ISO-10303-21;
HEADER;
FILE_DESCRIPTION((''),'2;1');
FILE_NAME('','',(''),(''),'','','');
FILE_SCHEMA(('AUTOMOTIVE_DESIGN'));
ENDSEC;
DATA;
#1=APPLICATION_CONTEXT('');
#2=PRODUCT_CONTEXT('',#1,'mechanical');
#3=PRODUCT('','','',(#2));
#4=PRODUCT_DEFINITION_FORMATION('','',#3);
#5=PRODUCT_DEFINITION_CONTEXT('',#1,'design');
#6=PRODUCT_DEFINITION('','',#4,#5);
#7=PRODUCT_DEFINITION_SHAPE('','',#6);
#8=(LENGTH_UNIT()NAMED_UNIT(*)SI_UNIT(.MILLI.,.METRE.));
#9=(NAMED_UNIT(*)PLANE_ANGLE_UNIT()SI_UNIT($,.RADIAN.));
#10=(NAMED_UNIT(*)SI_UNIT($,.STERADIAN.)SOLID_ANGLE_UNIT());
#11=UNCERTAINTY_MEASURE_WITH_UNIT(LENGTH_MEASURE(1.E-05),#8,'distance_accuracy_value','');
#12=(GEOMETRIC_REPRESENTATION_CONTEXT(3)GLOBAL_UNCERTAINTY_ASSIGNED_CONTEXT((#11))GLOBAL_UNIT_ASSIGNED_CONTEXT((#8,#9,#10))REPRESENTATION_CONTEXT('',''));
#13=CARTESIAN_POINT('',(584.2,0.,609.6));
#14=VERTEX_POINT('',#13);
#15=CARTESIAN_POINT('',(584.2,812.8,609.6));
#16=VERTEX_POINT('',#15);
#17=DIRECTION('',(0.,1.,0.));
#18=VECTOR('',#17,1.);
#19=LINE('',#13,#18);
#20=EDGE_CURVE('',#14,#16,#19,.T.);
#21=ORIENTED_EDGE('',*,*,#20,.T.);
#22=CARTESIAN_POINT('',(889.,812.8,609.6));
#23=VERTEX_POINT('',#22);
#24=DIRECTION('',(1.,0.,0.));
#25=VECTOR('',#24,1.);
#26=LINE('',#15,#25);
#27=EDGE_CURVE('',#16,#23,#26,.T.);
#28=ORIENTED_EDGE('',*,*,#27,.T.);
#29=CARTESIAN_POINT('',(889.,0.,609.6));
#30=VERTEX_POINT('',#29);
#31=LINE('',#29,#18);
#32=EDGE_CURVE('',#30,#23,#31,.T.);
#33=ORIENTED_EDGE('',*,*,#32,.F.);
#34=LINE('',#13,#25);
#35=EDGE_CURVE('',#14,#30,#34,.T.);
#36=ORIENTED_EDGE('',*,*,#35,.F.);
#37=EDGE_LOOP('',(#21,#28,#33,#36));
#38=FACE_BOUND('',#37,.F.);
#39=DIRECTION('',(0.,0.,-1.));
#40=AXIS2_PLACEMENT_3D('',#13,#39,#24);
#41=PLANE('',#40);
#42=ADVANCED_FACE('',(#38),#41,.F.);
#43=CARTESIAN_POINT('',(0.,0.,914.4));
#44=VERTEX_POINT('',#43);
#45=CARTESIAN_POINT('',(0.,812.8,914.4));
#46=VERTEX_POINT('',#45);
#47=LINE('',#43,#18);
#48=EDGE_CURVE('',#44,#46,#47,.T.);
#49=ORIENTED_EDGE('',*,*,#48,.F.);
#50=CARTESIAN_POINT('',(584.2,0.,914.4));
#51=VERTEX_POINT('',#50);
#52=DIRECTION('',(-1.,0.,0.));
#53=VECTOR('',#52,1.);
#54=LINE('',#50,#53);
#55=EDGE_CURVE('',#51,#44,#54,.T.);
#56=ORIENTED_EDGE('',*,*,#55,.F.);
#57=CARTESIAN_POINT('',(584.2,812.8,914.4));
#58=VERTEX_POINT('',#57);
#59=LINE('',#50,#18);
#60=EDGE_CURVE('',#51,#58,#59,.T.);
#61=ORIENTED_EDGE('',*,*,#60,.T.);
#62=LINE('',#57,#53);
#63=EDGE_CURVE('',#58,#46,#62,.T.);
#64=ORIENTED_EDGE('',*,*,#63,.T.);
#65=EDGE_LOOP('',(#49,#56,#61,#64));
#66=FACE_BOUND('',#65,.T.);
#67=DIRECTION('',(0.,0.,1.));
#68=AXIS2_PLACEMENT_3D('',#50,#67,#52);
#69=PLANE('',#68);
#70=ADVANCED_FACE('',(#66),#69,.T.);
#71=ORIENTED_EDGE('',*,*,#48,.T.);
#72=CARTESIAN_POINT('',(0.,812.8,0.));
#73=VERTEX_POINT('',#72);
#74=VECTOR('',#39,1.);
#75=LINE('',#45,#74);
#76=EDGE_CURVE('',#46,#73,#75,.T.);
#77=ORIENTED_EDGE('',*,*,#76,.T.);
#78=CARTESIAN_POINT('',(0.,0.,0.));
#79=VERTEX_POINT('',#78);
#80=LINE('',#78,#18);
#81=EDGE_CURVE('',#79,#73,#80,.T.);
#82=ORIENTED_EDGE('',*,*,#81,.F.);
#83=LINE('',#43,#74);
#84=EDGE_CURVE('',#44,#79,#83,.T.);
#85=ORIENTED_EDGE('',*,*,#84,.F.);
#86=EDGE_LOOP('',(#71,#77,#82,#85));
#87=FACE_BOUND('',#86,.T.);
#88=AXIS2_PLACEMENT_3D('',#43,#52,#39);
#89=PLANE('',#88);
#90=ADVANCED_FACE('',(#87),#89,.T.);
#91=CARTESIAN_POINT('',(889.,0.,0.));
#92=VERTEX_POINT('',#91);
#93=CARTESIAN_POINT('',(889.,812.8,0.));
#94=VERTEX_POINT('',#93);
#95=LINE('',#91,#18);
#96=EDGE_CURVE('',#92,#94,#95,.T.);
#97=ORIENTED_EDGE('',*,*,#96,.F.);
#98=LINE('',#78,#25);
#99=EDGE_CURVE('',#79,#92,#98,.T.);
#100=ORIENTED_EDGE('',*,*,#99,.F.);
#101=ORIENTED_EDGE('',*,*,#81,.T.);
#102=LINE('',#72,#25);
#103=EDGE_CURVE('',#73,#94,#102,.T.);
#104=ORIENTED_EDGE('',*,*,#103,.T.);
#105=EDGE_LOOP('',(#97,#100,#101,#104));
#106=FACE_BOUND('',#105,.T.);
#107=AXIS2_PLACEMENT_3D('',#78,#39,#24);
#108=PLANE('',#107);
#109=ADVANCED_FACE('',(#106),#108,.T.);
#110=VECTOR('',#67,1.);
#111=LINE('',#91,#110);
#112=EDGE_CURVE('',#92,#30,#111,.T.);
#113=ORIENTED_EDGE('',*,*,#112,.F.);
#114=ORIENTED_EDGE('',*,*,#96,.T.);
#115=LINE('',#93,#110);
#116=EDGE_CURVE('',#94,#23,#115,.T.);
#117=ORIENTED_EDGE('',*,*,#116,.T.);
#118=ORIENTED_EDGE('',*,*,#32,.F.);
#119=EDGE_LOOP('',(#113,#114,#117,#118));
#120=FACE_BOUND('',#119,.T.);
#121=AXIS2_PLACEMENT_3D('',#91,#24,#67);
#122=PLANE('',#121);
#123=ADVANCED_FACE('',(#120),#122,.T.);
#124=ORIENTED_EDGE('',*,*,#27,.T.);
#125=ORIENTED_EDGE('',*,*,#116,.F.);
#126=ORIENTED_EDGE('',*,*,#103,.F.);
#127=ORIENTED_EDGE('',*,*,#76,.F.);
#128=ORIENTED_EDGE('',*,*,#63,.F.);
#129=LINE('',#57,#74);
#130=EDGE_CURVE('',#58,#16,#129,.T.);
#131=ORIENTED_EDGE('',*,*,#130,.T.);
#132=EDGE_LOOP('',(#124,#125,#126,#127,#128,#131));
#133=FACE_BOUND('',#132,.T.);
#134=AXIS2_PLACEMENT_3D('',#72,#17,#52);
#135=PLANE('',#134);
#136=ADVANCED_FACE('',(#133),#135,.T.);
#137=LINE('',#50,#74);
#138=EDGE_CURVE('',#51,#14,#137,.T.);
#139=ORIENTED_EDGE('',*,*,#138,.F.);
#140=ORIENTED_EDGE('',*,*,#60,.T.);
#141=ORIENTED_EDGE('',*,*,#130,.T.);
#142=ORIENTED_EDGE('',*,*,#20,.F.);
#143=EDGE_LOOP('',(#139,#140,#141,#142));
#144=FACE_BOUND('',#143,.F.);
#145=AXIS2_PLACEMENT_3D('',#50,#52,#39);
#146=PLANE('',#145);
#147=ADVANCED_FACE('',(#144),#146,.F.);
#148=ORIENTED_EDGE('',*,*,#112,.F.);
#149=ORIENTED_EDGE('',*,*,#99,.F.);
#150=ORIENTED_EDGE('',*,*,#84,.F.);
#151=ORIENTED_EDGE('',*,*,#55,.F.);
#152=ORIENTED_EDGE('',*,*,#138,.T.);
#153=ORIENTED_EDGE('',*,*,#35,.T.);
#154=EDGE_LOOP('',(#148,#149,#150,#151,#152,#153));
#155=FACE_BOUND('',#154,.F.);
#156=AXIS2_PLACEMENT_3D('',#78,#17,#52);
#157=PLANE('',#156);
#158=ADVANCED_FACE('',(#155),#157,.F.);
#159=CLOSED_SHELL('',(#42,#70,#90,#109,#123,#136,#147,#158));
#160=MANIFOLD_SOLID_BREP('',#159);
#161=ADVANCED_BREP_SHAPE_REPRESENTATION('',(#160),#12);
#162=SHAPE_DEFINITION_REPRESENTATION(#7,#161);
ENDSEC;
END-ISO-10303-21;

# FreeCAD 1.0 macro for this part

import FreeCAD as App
import Part
import Sketcher
Q = App.Units.Quantity

doc = App.newDocument("Part")
body = doc.addObject("PartDesign::Body", "Body")

sketch1 = body.newObject("Sketcher::SketchObject", "Sketch")
sketch1.AttachmentSupport = (doc.getObject("XZ_Plane"), [""])
sketch1.MapMode = "FlatFace"
sketch1.addGeometry(Part.LineSegment(App.Vector(889, 0, 0), App.Vector(0, 0, 0)), False)
sketch1.addGeometry(Part.LineSegment(App.Vector(0, 0, 0), App.Vector(0, 914, 0)), False)
sketch1.addGeometry(Part.LineSegment(App.Vector(0, 914, 0), App.Vector(584, 914, 0)), False)
sketch1.addGeometry(Part.LineSegment(App.Vector(584, 914, 0), App.Vector(584, 610, 0)), False)
sketch1.addGeometry(Part.LineSegment(App.Vector(584, 610, 0), App.Vector(889, 610, 0)), False)
sketch1.addGeometry(Part.LineSegment(App.Vector(889, 610, 0), App.Vector(889, 0, 0)), False)
sketch1.addConstraint(Sketcher.Constraint("Coincident", 0, 2, 1, 1))
sketch1.addConstraint(Sketcher.Constraint("Coincident", 1, 2, 2, 1))
sketch1.addConstraint(Sketcher.Constraint("Coincident", 2, 2, 3, 1))
sketch1.addConstraint(Sketcher.Constraint("Coincident", 3, 2, 4, 1))
sketch1.addConstraint(Sketcher.Constraint("Coincident", 4, 2, 5, 1))
sketch1.addConstraint(Sketcher.Constraint("Coincident", 5, 2, 0, 1))
sketch1.addConstraint(Sketcher.Constraint("Horizontal", 0))
sketch1.addConstraint(Sketcher.Constraint("Vertical", 1))
sketch1.addConstraint(Sketcher.Constraint("Horizontal", 2))
sketch1.addConstraint(Sketcher.Constraint("Vertical", 3))
sketch1.addConstraint(Sketcher.Constraint("Horizontal", 4))
sketch1.addConstraint(Sketcher.Constraint("Vertical", 5))
sketch1.addConstraint(Sketcher.Constraint("Coincident", 0, 2, -1, 1))
sketch1.addConstraint(Sketcher.Constraint("Equal", 4, 3))
sketch1.addConstraint(Sketcher.Constraint("DistanceX", 0, 2, 0, 1, Q("35 in")))
sketch1.addConstraint(Sketcher.Constraint("DistanceX", 2, 1, 2, 2, Q("23 in")))
sketch1.addConstraint(Sketcher.Constraint("DistanceY", 1, 1, 1, 2, Q("36 in")))
pad1 = body.newObject("PartDesign::Pad", "Pad")
pad1.Profile = sketch1
pad1.Length = Q("32 in")
pad1.Reversed = True

doc.recompute()
